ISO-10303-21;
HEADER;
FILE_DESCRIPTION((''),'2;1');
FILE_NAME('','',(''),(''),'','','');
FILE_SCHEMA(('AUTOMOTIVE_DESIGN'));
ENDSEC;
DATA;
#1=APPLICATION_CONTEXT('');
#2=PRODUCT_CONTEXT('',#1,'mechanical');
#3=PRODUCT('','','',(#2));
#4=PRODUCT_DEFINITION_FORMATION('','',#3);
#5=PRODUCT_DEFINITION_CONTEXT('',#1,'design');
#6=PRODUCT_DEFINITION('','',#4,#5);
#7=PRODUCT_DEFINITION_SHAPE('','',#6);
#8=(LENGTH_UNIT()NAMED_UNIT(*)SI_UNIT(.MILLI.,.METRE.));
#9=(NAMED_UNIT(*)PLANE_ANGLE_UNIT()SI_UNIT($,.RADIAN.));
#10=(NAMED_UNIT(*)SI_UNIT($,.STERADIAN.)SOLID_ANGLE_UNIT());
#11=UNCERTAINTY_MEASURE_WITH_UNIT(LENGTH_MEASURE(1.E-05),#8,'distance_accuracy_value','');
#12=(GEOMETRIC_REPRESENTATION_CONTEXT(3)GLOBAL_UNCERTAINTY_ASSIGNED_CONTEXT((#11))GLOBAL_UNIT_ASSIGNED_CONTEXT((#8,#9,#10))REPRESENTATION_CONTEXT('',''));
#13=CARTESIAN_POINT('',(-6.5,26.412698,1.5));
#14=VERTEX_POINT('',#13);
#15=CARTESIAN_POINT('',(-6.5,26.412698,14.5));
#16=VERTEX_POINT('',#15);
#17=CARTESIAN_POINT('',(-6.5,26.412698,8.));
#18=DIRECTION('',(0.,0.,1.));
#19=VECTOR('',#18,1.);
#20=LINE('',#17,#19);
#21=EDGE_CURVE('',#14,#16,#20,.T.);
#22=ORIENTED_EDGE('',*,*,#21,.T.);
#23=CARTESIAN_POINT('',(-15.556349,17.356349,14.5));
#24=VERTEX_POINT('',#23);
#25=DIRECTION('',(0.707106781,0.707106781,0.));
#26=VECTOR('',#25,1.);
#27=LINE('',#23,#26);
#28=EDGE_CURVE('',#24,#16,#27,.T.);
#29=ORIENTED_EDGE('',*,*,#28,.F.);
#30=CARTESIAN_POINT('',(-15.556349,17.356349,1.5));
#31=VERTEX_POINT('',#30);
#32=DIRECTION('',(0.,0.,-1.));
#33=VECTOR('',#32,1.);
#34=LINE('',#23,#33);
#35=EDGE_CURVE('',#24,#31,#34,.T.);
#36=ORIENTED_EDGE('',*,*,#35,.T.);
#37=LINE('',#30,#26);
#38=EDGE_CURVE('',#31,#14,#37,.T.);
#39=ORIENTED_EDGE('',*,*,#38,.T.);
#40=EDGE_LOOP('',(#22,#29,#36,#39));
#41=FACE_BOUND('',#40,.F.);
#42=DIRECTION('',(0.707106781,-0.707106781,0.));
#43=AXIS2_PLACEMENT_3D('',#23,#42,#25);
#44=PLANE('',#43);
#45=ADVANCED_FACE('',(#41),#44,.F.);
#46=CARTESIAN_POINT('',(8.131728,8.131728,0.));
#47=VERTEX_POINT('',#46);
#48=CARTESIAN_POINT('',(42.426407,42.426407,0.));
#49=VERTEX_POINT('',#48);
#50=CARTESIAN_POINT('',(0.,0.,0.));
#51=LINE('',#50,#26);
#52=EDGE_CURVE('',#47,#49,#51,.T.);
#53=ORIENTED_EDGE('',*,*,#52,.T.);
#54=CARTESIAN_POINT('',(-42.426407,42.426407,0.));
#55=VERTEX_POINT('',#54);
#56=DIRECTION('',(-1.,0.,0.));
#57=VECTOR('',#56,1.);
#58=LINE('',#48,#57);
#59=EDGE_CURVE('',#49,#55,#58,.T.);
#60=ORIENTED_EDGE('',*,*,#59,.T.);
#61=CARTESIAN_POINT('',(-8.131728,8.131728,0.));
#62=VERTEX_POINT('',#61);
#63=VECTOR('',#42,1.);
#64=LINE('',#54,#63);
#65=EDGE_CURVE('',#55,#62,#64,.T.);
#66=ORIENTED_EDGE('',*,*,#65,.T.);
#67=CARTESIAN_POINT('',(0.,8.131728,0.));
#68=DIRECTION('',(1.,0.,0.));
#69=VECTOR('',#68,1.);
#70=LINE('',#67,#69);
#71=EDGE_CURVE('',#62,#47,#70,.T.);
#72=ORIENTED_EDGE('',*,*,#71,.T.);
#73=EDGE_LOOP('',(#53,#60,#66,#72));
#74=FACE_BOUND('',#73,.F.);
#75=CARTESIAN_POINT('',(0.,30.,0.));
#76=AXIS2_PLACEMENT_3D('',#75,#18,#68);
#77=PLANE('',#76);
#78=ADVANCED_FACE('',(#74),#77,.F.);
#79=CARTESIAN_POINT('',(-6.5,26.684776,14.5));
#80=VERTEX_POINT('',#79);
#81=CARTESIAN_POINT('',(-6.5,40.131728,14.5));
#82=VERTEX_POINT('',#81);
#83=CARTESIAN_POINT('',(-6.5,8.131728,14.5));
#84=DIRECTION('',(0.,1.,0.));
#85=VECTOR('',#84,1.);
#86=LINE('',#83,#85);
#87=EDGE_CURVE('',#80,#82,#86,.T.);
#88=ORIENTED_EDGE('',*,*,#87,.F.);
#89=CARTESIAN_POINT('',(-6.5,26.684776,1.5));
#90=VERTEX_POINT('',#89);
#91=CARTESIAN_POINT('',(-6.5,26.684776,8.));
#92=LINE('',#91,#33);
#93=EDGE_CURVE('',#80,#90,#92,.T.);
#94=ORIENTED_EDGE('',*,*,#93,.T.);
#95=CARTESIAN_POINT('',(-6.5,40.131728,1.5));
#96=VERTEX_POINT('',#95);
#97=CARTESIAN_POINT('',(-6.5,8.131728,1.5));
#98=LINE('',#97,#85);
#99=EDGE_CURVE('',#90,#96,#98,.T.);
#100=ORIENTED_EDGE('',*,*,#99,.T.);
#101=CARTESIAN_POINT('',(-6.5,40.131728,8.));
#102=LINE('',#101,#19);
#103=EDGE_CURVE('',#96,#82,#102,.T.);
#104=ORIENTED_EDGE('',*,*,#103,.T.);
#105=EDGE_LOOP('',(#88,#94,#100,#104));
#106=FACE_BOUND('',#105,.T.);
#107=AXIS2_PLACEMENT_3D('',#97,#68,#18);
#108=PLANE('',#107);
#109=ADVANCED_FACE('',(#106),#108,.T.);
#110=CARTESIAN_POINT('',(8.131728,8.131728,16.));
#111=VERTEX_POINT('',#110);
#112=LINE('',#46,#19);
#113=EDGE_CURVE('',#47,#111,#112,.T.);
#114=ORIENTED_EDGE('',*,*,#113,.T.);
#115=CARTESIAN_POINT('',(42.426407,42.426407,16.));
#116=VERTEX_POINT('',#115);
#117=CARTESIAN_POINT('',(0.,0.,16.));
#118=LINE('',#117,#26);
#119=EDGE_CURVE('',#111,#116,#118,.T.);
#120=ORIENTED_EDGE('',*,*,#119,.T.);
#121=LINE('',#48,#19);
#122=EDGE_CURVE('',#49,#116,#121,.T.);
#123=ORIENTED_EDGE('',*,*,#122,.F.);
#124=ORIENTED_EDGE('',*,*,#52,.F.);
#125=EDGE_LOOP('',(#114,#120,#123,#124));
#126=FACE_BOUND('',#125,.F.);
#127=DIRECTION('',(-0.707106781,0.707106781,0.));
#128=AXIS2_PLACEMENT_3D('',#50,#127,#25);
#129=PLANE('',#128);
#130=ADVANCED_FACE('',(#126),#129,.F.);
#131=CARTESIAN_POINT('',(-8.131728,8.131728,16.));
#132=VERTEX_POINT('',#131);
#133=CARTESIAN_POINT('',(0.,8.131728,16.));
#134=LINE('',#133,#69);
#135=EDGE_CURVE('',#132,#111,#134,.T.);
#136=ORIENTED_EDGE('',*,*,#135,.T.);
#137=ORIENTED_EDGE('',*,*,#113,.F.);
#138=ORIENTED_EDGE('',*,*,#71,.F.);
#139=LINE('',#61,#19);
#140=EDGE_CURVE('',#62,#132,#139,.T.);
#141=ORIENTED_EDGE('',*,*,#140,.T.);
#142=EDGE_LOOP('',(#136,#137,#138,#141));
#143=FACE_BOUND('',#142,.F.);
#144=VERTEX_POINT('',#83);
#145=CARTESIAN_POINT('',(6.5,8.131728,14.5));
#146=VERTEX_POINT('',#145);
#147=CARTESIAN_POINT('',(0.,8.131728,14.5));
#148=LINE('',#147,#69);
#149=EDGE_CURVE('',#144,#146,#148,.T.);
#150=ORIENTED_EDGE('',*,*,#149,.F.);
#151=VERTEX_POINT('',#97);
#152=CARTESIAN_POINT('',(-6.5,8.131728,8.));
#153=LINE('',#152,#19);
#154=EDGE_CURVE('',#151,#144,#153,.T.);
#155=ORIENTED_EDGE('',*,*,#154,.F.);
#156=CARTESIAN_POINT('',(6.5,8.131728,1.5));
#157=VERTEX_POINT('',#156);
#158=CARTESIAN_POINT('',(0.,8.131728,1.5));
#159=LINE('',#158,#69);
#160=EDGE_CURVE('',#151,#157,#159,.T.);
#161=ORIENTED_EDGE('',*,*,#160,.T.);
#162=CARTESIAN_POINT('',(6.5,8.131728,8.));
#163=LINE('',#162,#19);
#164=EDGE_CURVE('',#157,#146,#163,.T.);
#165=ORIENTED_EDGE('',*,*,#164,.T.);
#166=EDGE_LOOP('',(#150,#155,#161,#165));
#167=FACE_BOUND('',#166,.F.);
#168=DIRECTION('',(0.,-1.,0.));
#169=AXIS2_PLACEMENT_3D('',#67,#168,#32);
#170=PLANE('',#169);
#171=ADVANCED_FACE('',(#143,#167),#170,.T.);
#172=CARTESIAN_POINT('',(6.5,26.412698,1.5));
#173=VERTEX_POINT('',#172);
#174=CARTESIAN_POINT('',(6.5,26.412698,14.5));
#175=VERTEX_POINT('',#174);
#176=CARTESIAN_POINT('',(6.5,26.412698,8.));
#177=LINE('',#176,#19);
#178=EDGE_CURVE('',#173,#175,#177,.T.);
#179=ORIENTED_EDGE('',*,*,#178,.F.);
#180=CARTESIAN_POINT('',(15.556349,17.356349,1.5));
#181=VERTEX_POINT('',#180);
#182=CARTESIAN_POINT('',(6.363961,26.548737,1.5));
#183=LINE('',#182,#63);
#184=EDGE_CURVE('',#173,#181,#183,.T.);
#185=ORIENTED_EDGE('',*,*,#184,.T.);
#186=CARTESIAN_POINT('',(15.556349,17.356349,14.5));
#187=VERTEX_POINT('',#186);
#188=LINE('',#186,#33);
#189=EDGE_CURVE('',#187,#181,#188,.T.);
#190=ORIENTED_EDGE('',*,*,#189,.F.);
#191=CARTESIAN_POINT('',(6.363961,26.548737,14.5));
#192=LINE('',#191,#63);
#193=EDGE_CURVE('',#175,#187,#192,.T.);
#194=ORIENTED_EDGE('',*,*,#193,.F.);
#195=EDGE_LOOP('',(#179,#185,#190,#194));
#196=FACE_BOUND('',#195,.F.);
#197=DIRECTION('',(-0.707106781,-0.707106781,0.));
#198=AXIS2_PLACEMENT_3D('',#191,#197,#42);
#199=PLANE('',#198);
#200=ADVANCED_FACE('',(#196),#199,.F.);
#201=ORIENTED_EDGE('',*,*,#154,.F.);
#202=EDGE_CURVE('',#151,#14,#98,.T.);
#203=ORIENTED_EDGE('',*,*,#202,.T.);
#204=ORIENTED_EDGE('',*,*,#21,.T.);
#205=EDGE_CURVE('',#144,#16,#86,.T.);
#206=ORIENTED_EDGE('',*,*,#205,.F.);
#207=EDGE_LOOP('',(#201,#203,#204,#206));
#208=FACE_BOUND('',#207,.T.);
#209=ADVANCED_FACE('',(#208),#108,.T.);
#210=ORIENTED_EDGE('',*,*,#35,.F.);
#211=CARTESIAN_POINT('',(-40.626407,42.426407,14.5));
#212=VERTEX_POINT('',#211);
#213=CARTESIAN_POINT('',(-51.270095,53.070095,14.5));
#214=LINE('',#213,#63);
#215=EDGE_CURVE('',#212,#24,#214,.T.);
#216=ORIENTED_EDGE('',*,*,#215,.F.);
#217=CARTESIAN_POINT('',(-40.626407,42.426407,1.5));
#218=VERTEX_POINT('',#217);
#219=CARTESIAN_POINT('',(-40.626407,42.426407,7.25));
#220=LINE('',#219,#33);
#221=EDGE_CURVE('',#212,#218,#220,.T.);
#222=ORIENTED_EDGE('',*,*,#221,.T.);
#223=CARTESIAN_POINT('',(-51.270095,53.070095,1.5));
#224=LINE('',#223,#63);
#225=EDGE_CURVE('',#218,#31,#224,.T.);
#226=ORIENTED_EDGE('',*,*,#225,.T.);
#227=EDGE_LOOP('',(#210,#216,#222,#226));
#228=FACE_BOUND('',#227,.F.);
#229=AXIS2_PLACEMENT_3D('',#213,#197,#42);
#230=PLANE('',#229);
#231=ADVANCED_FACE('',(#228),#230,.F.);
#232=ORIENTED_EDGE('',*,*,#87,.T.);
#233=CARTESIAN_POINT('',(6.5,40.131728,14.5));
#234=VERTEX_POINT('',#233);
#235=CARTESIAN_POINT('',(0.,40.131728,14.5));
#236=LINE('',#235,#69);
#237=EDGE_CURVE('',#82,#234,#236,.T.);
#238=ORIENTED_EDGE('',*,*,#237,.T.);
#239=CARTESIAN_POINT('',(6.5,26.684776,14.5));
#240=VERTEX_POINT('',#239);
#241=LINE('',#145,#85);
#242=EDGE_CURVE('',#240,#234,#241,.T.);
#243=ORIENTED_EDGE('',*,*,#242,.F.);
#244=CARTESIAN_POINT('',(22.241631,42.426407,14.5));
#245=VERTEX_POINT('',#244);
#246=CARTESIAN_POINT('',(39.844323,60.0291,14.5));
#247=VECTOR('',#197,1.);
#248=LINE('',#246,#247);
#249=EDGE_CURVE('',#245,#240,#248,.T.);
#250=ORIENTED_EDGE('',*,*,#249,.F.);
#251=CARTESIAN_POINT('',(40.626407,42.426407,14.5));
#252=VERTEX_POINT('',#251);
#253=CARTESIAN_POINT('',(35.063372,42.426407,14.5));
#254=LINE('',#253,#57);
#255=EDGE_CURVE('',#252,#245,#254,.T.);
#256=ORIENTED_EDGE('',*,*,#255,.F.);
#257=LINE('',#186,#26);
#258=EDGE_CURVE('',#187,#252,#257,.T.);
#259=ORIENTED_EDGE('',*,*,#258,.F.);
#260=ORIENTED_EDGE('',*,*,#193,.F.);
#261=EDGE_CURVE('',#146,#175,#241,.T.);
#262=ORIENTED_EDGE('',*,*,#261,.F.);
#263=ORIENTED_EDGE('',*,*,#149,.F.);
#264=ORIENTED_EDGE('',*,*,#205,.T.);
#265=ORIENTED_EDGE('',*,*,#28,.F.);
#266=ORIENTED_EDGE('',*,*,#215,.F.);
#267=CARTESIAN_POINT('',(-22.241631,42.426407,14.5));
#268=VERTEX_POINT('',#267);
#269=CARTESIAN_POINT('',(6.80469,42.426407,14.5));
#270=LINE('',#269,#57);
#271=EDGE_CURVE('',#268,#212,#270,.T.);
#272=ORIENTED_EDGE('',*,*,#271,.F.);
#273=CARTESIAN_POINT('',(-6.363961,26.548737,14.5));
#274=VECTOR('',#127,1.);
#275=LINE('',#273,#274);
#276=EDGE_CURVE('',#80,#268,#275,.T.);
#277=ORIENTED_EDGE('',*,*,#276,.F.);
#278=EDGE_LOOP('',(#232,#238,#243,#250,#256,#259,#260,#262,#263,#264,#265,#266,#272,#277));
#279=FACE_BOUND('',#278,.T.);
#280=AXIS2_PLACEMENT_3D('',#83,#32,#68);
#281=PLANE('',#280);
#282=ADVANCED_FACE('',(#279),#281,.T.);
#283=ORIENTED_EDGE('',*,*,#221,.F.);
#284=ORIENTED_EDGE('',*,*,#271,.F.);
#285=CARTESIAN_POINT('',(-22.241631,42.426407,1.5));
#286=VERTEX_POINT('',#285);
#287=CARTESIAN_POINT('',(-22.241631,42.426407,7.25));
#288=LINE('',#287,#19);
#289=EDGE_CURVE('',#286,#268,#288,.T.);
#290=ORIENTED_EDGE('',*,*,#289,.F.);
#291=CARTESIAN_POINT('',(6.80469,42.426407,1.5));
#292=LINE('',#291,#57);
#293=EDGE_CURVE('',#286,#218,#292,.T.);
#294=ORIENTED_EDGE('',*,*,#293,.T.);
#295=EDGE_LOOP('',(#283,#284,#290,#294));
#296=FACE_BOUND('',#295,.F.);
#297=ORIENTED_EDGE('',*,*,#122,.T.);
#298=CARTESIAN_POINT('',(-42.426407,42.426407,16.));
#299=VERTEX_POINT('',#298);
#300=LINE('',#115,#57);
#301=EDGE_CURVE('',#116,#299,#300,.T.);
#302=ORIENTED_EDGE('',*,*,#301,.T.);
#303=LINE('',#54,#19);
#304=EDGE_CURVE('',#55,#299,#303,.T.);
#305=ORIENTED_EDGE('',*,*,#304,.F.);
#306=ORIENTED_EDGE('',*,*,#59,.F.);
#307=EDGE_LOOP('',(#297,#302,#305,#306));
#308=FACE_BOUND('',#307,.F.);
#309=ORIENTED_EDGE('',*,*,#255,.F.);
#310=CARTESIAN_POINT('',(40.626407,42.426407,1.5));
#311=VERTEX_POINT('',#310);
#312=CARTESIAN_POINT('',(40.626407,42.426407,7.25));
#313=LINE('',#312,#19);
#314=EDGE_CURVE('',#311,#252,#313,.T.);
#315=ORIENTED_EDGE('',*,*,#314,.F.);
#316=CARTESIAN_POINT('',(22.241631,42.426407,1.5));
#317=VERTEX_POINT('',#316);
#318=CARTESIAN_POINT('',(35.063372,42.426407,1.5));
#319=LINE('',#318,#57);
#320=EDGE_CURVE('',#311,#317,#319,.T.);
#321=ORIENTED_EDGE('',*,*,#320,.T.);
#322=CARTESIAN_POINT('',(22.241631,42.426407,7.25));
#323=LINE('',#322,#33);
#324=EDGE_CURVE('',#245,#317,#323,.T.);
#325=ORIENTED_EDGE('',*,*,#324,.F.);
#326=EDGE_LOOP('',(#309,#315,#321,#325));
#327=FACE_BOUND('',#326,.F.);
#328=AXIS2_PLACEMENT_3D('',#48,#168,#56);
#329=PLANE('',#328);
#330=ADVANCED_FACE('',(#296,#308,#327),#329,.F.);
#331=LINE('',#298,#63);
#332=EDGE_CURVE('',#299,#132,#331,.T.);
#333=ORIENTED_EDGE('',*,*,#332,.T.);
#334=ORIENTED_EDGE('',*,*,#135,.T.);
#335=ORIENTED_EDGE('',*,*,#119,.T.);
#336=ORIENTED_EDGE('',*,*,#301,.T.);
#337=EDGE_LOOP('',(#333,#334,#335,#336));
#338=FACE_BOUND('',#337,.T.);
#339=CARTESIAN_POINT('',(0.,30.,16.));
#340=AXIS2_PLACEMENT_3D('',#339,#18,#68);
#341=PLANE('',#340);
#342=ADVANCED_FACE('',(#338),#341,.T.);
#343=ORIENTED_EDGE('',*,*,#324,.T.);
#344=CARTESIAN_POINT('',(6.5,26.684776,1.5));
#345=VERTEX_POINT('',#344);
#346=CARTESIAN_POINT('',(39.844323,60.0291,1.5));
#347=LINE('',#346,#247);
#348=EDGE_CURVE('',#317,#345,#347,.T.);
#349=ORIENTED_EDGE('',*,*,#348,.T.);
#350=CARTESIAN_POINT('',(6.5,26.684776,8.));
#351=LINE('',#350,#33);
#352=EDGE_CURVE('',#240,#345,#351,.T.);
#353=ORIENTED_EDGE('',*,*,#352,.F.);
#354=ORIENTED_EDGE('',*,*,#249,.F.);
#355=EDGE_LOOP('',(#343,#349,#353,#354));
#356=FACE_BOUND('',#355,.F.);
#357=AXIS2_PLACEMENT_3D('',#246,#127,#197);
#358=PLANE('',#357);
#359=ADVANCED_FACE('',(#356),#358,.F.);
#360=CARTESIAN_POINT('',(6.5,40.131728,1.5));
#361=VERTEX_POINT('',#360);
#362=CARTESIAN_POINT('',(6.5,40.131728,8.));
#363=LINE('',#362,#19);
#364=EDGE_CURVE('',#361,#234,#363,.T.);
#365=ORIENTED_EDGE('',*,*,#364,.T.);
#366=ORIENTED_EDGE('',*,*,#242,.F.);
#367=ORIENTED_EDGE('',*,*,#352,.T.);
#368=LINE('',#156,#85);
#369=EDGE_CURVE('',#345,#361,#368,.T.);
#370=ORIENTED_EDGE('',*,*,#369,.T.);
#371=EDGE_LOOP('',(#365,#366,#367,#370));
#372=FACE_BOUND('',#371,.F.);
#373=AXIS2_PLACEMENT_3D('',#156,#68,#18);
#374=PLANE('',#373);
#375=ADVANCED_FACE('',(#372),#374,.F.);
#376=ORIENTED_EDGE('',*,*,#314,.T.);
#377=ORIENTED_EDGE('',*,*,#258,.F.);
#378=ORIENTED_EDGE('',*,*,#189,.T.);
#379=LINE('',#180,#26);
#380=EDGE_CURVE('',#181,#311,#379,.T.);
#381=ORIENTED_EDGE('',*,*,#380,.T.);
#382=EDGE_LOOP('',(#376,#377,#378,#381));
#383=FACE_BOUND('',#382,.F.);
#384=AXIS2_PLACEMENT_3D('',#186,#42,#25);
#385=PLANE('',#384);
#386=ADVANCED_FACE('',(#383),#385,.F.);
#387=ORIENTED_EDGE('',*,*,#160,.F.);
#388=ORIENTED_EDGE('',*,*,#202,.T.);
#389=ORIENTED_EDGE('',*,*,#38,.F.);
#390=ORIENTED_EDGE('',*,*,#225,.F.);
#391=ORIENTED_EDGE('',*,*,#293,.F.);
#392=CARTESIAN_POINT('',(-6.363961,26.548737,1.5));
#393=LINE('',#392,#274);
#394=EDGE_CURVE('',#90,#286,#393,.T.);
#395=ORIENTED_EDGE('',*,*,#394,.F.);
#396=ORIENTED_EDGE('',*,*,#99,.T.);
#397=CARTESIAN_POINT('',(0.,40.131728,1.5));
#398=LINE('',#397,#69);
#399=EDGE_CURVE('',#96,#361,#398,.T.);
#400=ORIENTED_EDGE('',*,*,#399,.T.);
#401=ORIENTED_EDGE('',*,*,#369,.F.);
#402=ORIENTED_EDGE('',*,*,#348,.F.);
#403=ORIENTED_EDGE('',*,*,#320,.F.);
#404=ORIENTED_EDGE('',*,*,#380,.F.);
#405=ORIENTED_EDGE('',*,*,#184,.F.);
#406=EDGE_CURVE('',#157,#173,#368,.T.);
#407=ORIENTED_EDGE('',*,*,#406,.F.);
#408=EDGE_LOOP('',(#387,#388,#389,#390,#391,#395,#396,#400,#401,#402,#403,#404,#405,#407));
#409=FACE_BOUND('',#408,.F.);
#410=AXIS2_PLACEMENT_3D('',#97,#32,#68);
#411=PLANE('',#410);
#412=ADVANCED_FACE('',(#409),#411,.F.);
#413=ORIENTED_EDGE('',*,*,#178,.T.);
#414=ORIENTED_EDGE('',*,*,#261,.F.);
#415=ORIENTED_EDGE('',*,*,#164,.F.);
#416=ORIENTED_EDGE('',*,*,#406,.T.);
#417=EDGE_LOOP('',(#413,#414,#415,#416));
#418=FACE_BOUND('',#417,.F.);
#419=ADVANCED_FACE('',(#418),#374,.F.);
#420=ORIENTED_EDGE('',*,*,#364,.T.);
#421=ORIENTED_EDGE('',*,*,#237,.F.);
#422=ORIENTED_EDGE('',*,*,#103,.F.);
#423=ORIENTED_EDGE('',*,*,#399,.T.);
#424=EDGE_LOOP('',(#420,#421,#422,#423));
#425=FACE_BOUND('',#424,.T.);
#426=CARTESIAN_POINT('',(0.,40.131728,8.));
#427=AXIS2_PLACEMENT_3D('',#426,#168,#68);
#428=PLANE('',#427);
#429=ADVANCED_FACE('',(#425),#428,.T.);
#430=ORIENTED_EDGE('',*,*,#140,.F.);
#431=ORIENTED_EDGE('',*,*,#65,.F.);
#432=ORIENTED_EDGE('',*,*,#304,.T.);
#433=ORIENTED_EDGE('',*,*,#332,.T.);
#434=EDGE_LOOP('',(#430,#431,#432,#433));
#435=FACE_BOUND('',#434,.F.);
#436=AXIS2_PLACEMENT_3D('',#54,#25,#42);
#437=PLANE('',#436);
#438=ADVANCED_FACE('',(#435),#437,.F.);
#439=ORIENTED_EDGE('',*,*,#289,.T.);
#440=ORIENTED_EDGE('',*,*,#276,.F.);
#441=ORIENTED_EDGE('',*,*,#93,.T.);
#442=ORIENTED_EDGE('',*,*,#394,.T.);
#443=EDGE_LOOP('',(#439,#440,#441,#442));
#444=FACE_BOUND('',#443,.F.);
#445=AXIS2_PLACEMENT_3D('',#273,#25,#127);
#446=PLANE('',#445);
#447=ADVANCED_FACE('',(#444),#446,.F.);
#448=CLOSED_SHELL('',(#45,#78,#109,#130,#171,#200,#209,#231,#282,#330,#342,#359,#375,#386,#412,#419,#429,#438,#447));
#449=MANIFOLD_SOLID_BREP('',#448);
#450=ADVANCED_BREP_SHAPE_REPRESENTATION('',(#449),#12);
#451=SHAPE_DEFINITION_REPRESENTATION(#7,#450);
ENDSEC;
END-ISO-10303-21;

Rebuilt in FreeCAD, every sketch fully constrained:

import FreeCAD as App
import Part
import Sketcher
from FreeCAD import Vector


def edges_at(feature, points):
    """Names of the edges that pass closest to the given points."""
    edges = feature.Shape.Edges
    near = lambda p: min(range(len(edges)), key=lambda i: edges[i].distToShape(Part.Vertex(*p))[0])
    return sorted({f"Edge{near(p) + 1}" for p in points})


def add_polygon(sketch, points):
    """Adds a closed chain of lines whose ends are joined by coincident constraints."""
    first, n = sketch.GeometryCount, len(points)
    for a, b in zip(points, points[1:] + points[:1]):
        sketch.addGeometry(Part.LineSegment(App.Vector(*a, 0), App.Vector(*b, 0)), False)
    for i in range(n):
        sketch.addConstraint(Sketcher.Constraint("Coincident", first + i, 2, first + (i + 1) % n, 1))

doc = App.newDocument("Part")
body = doc.addObject("PartDesign::Body", "Body")

sketch1 = body.newObject("Sketcher::SketchObject", "Sketch")
sketch1.AttachmentSupport = (doc.getObject("XY_Plane"), [""])
sketch1.MapMode = "FlatFace"
add_polygon(sketch1, [(-42.426407, 42.426407), (0, 0), (42.426407, 42.426407)])
sketch1.addConstraint([
    Sketcher.Constraint("Horizontal", 2),
    Sketcher.Constraint("Coincident", 0, 2, -1, 1),
    Sketcher.Constraint("Perpendicular", 0, 1),
    Sketcher.Constraint("Equal", 0, 1),
    Sketcher.Constraint("Distance", 0, 60.0),
])
pad1 = body.newObject("PartDesign::Pad", "Pad")
pad1.Profile = sketch1
pad1.Length = 16

sketch2 = body.newObject("Sketcher::SketchObject", "Sketch001")
sketch2.AttachmentSupport = (doc.getObject("XY_Plane"), [""])
sketch2.MapMode = "FlatFace"
sketch2.AttachmentOffset = App.Placement(Vector(0, 0, 14.5), App.Rotation())
add_polygon(sketch2, [(-51.270095, 53.070095), (-15.556349, 17.356349), (-6.363961, 26.548737), (-42.077706, 62.262483)])
add_polygon(sketch2, [(6.363961, 26.548737), (15.556349, 17.356349), (49.036712, 50.836712), (39.844323, 60.0291)])
sketch2.addConstraint([
    Sketcher.Constraint("Symmetric", 0, 2, 4, 2, -2),
    Sketcher.Constraint("Symmetric", 1, 2, 7, 2, -2),
    Sketcher.Constraint("Perpendicular", 0, 1),
    Sketcher.Constraint("Perpendicular", 1, 2),
    Sketcher.Constraint("Perpendicular", 2, 3),
    Sketcher.Constraint("Perpendicular", 3, 4),
    Sketcher.Constraint("Perpendicular", 4, 5),
    Sketcher.Constraint("Perpendicular", 5, 6),
    Sketcher.Constraint("Perpendicular", 6, 7),
    Sketcher.Constraint("Distance", 1, 13.0),
    Sketcher.Constraint("DistanceY", -1, 1, 6, 2, 60.0291),
    Sketcher.Constraint("DistanceX", 0, 2, 4, 2, 31.112698),
    Sketcher.Constraint("DistanceY", -1, 1, 0, 2, 17.356349),
    Sketcher.Constraint("DistanceX", 2, 2, 5, 2, 91.114418),
])
pocket1 = body.newObject("PartDesign::Pocket", "Pocket")
pocket1.Profile = sketch2
pocket1.Length = 13
doc.recompute()

chamfer = body.newObject("PartDesign::Chamfer", "Chamfer")
chamfer.Base = (pocket1, edges_at(pocket1, [(0, 0, 8)]))
chamfer.Size = 11.5

sketch3 = body.newObject("Sketcher::SketchObject", "Sketch002")
sketch3.AttachmentSupport = (doc.getObject("XZ_Plane"), [""])
sketch3.MapMode = "FlatFace"
sketch3.AttachmentOffset = App.Placement(Vector(0, 0, -8.131728), App.Rotation())
add_polygon(sketch3, [(-6.5, 14.5), (-6.5, 1.5), (6.5, 1.5), (6.5, 14.5)])
sketch3.addConstraint([
    Sketcher.Constraint("Vertical", 0),
    Sketcher.Constraint("Horizontal", 1),
    Sketcher.Constraint("Vertical", 2),
    Sketcher.Constraint("Horizontal", 3),
    Sketcher.Constraint("Equal", 3, 0),
    Sketcher.Constraint("DistanceX", 1, 1, 1, 2, 13.0),
    Sketcher.Constraint("DistanceX", 0, 2, -1, 1, 6.5),
    Sketcher.Constraint("DistanceY", -1, 1, 0, 2, 1.5),
])
pocket2 = body.newObject("PartDesign::Pocket", "Pocket001")
pocket2.Profile = sketch3
pocket2.Length = 32

doc.recompute()
